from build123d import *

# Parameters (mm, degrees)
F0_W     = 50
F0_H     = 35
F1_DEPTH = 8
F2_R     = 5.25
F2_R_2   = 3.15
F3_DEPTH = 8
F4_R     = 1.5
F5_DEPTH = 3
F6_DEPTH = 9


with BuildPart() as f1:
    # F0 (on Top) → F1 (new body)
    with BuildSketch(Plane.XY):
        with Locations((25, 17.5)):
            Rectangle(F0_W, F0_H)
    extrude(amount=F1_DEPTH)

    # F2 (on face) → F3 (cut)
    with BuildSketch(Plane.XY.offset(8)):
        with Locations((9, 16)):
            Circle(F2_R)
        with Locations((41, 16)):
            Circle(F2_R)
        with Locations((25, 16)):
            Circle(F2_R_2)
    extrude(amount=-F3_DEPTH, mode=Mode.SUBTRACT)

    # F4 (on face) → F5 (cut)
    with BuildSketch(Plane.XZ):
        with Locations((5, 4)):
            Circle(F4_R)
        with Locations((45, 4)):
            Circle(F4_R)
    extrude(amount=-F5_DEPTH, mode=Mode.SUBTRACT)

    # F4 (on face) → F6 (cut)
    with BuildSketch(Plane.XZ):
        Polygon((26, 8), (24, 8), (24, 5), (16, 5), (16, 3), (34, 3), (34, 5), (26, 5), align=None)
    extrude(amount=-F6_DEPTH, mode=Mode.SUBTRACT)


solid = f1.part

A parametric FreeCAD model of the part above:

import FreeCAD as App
import Part
import Sketcher


def add_polygon(sketch, points):
    """Adds a closed chain of lines whose ends are joined by coincident constraints."""
    first, n = sketch.GeometryCount, len(points)
    for a, b in zip(points, points[1:] + points[:1]):
        sketch.addGeometry(Part.LineSegment(App.Vector(*a, 0), App.Vector(*b, 0)), False)
    for i in range(n):
        sketch.addConstraint(Sketcher.Constraint("Coincident", first + i, 2, first + (i + 1) % n, 1))

doc = App.newDocument("Part")
body = doc.addObject("PartDesign::Body", "Body")

sketch1 = doc.addObject("Sketcher::SketchObject", "Sketch")
body.addObject(sketch1)
sketch1.AttachmentSupport = (doc.XY_Plane, [""])
sketch1.MapMode = "FlatFace"
add_polygon(sketch1, [(0, 35), (0, 0), (50, 0), (50, 35)])
sketch1.addConstraint(Sketcher.Constraint("Vertical", 0))
sketch1.addConstraint(Sketcher.Constraint("Horizontal", 1))
sketch1.addConstraint(Sketcher.Constraint("Vertical", 2))
sketch1.addConstraint(Sketcher.Constraint("Horizontal", 3))
sketch1.addConstraint(Sketcher.Constraint("Coincident", 0, 2, -1, 1))
sketch1.addConstraint(Sketcher.Constraint("DistanceX", 1, 1, 1, 2, 50.0))
sketch1.addConstraint(Sketcher.Constraint("DistanceY", 0, 2, 0, 1, 35.0))
pad1 = doc.addObject("PartDesign::Pad", "Pad")
body.addObject(pad1)
pad1.Profile = sketch1
pad1.Length = 8

sketch2 = doc.addObject("Sketcher::SketchObject", "Sketch001")
body.addObject(sketch2)
sketch2.AttachmentSupport = (doc.XY_Plane, [""])
sketch2.MapMode = "FlatFace"
sketch2.AttachmentOffset = App.Placement(App.Vector(0, 0, 8), App.Rotation())
sketch2.addGeometry(Part.Circle(App.Vector(9, 16, 0), App.Vector(0, 0, 1), 5.2), False)
sketch2.addGeometry(Part.Circle(App.Vector(41, 16, 0), App.Vector(0, 0, 1), 5.2), False)
sketch2.addGeometry(Part.Circle(App.Vector(25, 16, 0), App.Vector(0, 0, 1), 3.1), False)
sketch2.addConstraint(Sketcher.Constraint("Equal", 0, 1))
sketch2.addConstraint(Sketcher.Constraint("Horizontal", 0, 3, 1, 3))
sketch2.addConstraint(Sketcher.Constraint("Horizontal", 1, 3, 2, 3))
sketch2.addConstraint(Sketcher.Constraint("Diameter", 0, 10.5))
sketch2.addConstraint(Sketcher.Constraint("Diameter", 2, 6.3))
sketch2.addConstraint(Sketcher.Constraint("DistanceX", -1, 1, 0, 3, 9.0))
sketch2.addConstraint(Sketcher.Constraint("DistanceY", -1, 1, 0, 3, 16.0))
sketch2.addConstraint(Sketcher.Constraint("DistanceX", -1, 1, 1, 3, 41.0))
sketch2.addConstraint(Sketcher.Constraint("DistanceX", -1, 1, 2, 3, 25.0))
pocket1 = doc.addObject("PartDesign::Pocket", "Pocket")
body.addObject(pocket1)
pocket1.Profile = sketch2
pocket1.Length = 8

sketch3 = doc.addObject("Sketcher::SketchObject", "Sketch002")
body.addObject(sketch3)
sketch3.AttachmentSupport = (doc.XZ_Plane, [""])
sketch3.MapMode = "FlatFace"
sketch3.addGeometry(Part.Circle(App.Vector(5, 4, 0), App.Vector(0, 0, 1), 1.5), False)
sketch3.addGeometry(Part.Circle(App.Vector(45, 4, 0), App.Vector(0, 0, 1), 1.5), False)
sketch3.addConstraint(Sketcher.Constraint("Equal", 0, 1))
sketch3.addConstraint(Sketcher.Constraint("Horizontal", 0, 3, 1, 3))
sketch3.addConstraint(Sketcher.Constraint("Diameter", 0, 3.0))
sketch3.addConstraint(Sketcher.Constraint("DistanceX", -1, 1, 0, 3, 5.0))
sketch3.addConstraint(Sketcher.Constraint("DistanceY", -1, 1, 0, 3, 4.0))
sketch3.addConstraint(Sketcher.Constraint("DistanceX", -1, 1, 1, 3, 45.0))
pocket2 = doc.addObject("PartDesign::Pocket", "Pocket001")
body.addObject(pocket2)
pocket2.Profile = sketch3
pocket2.Length = 3

sketch4 = doc.addObject("Sketcher::SketchObject", "Sketch003")
body.addObject(sketch4)
sketch4.AttachmentSupport = (doc.XZ_Plane, [""])
sketch4.MapMode = "FlatFace"
add_polygon(sketch4, [(26, 8), (24, 8), (24, 5), (16, 5), (16, 3), (34, 3), (34, 5), (26, 5)])
sketch4.addConstraint(Sketcher.Constraint("Horizontal", 0))
sketch4.addConstraint(Sketcher.Constraint("Vertical", 1))
sketch4.addConstraint(Sketcher.Constraint("Horizontal", 2))
sketch4.addConstraint(Sketcher.Constraint("Vertical", 3))
sketch4.addConstraint(Sketcher.Constraint("Horizontal", 4))
sketch4.addConstraint(Sketcher.Constraint("Vertical", 5))
sketch4.addConstraint(Sketcher.Constraint("Horizontal", 6))
sketch4.addConstraint(Sketcher.Constraint("Vertical", 7))
sketch4.addConstraint(Sketcher.Constraint("Horizontal", 2, 2, 5, 2))
sketch4.addConstraint(Sketcher.Constraint("Equal", 2, 6))
sketch4.addConstraint(Sketcher.Constraint("Equal", 0, 3))
sketch4.addConstraint(Sketcher.Constraint("DistanceX", 0, 2, 0, 1, 2.0))
sketch4.addConstraint(Sketcher.Constraint("DistanceX", 2, 2, 2, 1, 8.0))
sketch4.addConstraint(Sketcher.Constraint("DistanceY", 1, 2, 1, 1, 3.0))
sketch4.addConstraint(Sketcher.Constraint("DistanceX", -1, 1, 0, 2, 24.0))
sketch4.addConstraint(Sketcher.Constraint("DistanceY", -1, 1, 0, 2, 8.0))
pocket3 = doc.addObject("PartDesign::Pocket", "Pocket002")
body.addObject(pocket3)
pocket3.Profile = sketch4
pocket3.Length = 9

doc.recompute()
